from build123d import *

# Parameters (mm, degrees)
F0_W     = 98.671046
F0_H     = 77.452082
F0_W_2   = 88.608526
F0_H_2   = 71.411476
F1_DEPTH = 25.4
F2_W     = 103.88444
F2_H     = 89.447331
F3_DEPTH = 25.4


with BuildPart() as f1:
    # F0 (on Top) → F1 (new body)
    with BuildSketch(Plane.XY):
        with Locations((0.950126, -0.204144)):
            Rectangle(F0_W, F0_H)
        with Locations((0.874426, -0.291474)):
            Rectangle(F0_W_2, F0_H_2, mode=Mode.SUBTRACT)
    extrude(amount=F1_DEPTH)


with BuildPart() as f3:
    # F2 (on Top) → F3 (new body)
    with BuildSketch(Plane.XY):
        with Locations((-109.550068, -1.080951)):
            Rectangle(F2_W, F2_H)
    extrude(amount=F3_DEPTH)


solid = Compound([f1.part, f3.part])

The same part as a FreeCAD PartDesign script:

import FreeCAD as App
import Part
import Sketcher
Q = App.Units.Quantity


def add_polygon(sketch, points):
    """Adds a closed chain of lines whose ends are joined by coincident constraints."""
    first, n = sketch.GeometryCount, len(points)
    for a, b in zip(points, points[1:] + points[:1]):
        sketch.addGeometry(Part.LineSegment(App.Vector(*a, 0), App.Vector(*b, 0)), False)
    for i in range(n):
        sketch.addConstraint(Sketcher.Constraint("Coincident", first + i, 2, first + (i + 1) % n, 1))

doc = App.newDocument("Part")
body = doc.addObject("PartDesign::Body", "Body")

# Sketch on XY plane
sketch1 = body.newObject("Sketcher::SketchObject", "Sketch")
sketch1.AttachmentSupport = (doc.getObject("XY_Plane"), [""])
sketch1.MapMode = "FlatFace"
add_polygon(sketch1, [(-48, 39), (-48, -39), (50, -39), (50, 39)])  # lines 0-3
add_polygon(sketch1, [(45, -36), (-43, -36), (-43, 35), (45, 35)])  # lines 4-7
sketch1.addConstraint(Sketcher.Constraint("Vertical", 0))
sketch1.addConstraint(Sketcher.Constraint("Horizontal", 1))
sketch1.addConstraint(Sketcher.Constraint("Vertical", 2))
sketch1.addConstraint(Sketcher.Constraint("Horizontal", 3))
sketch1.addConstraint(Sketcher.Constraint("Horizontal", 4))
sketch1.addConstraint(Sketcher.Constraint("Vertical", 5))
sketch1.addConstraint(Sketcher.Constraint("Horizontal", 6))
sketch1.addConstraint(Sketcher.Constraint("Vertical", 7))
sketch1.addConstraint(Sketcher.Constraint("DistanceX", 1, 1, 1, 2, 98.671046))
sketch1.addConstraint(Sketcher.Constraint("DistanceX", 4, 2, 4, 1, 88.608526))
sketch1.addConstraint(Sketcher.Constraint("DistanceY", 0, 2, 0, 1, 77.452082))
sketch1.addConstraint(Sketcher.Constraint("DistanceY", 5, 1, 5, 2, 71.411476))
sketch1.addConstraint(Sketcher.Constraint("DistanceX", -1, 1, 1, 2, 50.285649))
sketch1.addConstraint(Sketcher.Constraint("DistanceY", 4, 2, -1, 1, 35.997212))
sketch1.addConstraint(Sketcher.Constraint("DistanceX", -1, 1, 6, 2, 45.178689))
sketch1.addConstraint(Sketcher.Constraint("DistanceY", 4, 2, 3, 2, 74.519109))
pad1 = body.newObject("PartDesign::Pad", "Pad")
pad1.Profile = sketch1
pad1.Length = Q("1 in")
body2 = doc.addObject("PartDesign::Body", "Body001")

# Sketch on XY plane
sketch2 = body2.newObject("Sketcher::SketchObject", "Sketch001")
sketch2.AttachmentSupport = (doc.getObject("XY_Plane001"), [""])
sketch2.MapMode = "FlatFace"
add_polygon(sketch2, [(-161, 44), (-161, -46), (-58, -46), (-58, 44)])  # lines 0-3
sketch2.addConstraint(Sketcher.Constraint("Vertical", 0))
sketch2.addConstraint(Sketcher.Constraint("Horizontal", 1))
sketch2.addConstraint(Sketcher.Constraint("Vertical", 2))
sketch2.addConstraint(Sketcher.Constraint("Horizontal", 3))
sketch2.addConstraint(Sketcher.Constraint("DistanceX", 1, 1, 1, 2, 103.88444))
sketch2.addConstraint(Sketcher.Constraint("DistanceY", 0, 2, 0, 1, 89.447331))
sketch2.addConstraint(Sketcher.Constraint("DistanceX", 0, 2, -1, 1, 161.492288))
sketch2.addConstraint(Sketcher.Constraint("DistanceY", 0, 2, -1, 1, 45.804617))
pad2 = body2.newObject("PartDesign::Pad", "Pad001")
pad2.Profile = sketch2
pad2.Length = Q("1 in")

doc.recompute()
